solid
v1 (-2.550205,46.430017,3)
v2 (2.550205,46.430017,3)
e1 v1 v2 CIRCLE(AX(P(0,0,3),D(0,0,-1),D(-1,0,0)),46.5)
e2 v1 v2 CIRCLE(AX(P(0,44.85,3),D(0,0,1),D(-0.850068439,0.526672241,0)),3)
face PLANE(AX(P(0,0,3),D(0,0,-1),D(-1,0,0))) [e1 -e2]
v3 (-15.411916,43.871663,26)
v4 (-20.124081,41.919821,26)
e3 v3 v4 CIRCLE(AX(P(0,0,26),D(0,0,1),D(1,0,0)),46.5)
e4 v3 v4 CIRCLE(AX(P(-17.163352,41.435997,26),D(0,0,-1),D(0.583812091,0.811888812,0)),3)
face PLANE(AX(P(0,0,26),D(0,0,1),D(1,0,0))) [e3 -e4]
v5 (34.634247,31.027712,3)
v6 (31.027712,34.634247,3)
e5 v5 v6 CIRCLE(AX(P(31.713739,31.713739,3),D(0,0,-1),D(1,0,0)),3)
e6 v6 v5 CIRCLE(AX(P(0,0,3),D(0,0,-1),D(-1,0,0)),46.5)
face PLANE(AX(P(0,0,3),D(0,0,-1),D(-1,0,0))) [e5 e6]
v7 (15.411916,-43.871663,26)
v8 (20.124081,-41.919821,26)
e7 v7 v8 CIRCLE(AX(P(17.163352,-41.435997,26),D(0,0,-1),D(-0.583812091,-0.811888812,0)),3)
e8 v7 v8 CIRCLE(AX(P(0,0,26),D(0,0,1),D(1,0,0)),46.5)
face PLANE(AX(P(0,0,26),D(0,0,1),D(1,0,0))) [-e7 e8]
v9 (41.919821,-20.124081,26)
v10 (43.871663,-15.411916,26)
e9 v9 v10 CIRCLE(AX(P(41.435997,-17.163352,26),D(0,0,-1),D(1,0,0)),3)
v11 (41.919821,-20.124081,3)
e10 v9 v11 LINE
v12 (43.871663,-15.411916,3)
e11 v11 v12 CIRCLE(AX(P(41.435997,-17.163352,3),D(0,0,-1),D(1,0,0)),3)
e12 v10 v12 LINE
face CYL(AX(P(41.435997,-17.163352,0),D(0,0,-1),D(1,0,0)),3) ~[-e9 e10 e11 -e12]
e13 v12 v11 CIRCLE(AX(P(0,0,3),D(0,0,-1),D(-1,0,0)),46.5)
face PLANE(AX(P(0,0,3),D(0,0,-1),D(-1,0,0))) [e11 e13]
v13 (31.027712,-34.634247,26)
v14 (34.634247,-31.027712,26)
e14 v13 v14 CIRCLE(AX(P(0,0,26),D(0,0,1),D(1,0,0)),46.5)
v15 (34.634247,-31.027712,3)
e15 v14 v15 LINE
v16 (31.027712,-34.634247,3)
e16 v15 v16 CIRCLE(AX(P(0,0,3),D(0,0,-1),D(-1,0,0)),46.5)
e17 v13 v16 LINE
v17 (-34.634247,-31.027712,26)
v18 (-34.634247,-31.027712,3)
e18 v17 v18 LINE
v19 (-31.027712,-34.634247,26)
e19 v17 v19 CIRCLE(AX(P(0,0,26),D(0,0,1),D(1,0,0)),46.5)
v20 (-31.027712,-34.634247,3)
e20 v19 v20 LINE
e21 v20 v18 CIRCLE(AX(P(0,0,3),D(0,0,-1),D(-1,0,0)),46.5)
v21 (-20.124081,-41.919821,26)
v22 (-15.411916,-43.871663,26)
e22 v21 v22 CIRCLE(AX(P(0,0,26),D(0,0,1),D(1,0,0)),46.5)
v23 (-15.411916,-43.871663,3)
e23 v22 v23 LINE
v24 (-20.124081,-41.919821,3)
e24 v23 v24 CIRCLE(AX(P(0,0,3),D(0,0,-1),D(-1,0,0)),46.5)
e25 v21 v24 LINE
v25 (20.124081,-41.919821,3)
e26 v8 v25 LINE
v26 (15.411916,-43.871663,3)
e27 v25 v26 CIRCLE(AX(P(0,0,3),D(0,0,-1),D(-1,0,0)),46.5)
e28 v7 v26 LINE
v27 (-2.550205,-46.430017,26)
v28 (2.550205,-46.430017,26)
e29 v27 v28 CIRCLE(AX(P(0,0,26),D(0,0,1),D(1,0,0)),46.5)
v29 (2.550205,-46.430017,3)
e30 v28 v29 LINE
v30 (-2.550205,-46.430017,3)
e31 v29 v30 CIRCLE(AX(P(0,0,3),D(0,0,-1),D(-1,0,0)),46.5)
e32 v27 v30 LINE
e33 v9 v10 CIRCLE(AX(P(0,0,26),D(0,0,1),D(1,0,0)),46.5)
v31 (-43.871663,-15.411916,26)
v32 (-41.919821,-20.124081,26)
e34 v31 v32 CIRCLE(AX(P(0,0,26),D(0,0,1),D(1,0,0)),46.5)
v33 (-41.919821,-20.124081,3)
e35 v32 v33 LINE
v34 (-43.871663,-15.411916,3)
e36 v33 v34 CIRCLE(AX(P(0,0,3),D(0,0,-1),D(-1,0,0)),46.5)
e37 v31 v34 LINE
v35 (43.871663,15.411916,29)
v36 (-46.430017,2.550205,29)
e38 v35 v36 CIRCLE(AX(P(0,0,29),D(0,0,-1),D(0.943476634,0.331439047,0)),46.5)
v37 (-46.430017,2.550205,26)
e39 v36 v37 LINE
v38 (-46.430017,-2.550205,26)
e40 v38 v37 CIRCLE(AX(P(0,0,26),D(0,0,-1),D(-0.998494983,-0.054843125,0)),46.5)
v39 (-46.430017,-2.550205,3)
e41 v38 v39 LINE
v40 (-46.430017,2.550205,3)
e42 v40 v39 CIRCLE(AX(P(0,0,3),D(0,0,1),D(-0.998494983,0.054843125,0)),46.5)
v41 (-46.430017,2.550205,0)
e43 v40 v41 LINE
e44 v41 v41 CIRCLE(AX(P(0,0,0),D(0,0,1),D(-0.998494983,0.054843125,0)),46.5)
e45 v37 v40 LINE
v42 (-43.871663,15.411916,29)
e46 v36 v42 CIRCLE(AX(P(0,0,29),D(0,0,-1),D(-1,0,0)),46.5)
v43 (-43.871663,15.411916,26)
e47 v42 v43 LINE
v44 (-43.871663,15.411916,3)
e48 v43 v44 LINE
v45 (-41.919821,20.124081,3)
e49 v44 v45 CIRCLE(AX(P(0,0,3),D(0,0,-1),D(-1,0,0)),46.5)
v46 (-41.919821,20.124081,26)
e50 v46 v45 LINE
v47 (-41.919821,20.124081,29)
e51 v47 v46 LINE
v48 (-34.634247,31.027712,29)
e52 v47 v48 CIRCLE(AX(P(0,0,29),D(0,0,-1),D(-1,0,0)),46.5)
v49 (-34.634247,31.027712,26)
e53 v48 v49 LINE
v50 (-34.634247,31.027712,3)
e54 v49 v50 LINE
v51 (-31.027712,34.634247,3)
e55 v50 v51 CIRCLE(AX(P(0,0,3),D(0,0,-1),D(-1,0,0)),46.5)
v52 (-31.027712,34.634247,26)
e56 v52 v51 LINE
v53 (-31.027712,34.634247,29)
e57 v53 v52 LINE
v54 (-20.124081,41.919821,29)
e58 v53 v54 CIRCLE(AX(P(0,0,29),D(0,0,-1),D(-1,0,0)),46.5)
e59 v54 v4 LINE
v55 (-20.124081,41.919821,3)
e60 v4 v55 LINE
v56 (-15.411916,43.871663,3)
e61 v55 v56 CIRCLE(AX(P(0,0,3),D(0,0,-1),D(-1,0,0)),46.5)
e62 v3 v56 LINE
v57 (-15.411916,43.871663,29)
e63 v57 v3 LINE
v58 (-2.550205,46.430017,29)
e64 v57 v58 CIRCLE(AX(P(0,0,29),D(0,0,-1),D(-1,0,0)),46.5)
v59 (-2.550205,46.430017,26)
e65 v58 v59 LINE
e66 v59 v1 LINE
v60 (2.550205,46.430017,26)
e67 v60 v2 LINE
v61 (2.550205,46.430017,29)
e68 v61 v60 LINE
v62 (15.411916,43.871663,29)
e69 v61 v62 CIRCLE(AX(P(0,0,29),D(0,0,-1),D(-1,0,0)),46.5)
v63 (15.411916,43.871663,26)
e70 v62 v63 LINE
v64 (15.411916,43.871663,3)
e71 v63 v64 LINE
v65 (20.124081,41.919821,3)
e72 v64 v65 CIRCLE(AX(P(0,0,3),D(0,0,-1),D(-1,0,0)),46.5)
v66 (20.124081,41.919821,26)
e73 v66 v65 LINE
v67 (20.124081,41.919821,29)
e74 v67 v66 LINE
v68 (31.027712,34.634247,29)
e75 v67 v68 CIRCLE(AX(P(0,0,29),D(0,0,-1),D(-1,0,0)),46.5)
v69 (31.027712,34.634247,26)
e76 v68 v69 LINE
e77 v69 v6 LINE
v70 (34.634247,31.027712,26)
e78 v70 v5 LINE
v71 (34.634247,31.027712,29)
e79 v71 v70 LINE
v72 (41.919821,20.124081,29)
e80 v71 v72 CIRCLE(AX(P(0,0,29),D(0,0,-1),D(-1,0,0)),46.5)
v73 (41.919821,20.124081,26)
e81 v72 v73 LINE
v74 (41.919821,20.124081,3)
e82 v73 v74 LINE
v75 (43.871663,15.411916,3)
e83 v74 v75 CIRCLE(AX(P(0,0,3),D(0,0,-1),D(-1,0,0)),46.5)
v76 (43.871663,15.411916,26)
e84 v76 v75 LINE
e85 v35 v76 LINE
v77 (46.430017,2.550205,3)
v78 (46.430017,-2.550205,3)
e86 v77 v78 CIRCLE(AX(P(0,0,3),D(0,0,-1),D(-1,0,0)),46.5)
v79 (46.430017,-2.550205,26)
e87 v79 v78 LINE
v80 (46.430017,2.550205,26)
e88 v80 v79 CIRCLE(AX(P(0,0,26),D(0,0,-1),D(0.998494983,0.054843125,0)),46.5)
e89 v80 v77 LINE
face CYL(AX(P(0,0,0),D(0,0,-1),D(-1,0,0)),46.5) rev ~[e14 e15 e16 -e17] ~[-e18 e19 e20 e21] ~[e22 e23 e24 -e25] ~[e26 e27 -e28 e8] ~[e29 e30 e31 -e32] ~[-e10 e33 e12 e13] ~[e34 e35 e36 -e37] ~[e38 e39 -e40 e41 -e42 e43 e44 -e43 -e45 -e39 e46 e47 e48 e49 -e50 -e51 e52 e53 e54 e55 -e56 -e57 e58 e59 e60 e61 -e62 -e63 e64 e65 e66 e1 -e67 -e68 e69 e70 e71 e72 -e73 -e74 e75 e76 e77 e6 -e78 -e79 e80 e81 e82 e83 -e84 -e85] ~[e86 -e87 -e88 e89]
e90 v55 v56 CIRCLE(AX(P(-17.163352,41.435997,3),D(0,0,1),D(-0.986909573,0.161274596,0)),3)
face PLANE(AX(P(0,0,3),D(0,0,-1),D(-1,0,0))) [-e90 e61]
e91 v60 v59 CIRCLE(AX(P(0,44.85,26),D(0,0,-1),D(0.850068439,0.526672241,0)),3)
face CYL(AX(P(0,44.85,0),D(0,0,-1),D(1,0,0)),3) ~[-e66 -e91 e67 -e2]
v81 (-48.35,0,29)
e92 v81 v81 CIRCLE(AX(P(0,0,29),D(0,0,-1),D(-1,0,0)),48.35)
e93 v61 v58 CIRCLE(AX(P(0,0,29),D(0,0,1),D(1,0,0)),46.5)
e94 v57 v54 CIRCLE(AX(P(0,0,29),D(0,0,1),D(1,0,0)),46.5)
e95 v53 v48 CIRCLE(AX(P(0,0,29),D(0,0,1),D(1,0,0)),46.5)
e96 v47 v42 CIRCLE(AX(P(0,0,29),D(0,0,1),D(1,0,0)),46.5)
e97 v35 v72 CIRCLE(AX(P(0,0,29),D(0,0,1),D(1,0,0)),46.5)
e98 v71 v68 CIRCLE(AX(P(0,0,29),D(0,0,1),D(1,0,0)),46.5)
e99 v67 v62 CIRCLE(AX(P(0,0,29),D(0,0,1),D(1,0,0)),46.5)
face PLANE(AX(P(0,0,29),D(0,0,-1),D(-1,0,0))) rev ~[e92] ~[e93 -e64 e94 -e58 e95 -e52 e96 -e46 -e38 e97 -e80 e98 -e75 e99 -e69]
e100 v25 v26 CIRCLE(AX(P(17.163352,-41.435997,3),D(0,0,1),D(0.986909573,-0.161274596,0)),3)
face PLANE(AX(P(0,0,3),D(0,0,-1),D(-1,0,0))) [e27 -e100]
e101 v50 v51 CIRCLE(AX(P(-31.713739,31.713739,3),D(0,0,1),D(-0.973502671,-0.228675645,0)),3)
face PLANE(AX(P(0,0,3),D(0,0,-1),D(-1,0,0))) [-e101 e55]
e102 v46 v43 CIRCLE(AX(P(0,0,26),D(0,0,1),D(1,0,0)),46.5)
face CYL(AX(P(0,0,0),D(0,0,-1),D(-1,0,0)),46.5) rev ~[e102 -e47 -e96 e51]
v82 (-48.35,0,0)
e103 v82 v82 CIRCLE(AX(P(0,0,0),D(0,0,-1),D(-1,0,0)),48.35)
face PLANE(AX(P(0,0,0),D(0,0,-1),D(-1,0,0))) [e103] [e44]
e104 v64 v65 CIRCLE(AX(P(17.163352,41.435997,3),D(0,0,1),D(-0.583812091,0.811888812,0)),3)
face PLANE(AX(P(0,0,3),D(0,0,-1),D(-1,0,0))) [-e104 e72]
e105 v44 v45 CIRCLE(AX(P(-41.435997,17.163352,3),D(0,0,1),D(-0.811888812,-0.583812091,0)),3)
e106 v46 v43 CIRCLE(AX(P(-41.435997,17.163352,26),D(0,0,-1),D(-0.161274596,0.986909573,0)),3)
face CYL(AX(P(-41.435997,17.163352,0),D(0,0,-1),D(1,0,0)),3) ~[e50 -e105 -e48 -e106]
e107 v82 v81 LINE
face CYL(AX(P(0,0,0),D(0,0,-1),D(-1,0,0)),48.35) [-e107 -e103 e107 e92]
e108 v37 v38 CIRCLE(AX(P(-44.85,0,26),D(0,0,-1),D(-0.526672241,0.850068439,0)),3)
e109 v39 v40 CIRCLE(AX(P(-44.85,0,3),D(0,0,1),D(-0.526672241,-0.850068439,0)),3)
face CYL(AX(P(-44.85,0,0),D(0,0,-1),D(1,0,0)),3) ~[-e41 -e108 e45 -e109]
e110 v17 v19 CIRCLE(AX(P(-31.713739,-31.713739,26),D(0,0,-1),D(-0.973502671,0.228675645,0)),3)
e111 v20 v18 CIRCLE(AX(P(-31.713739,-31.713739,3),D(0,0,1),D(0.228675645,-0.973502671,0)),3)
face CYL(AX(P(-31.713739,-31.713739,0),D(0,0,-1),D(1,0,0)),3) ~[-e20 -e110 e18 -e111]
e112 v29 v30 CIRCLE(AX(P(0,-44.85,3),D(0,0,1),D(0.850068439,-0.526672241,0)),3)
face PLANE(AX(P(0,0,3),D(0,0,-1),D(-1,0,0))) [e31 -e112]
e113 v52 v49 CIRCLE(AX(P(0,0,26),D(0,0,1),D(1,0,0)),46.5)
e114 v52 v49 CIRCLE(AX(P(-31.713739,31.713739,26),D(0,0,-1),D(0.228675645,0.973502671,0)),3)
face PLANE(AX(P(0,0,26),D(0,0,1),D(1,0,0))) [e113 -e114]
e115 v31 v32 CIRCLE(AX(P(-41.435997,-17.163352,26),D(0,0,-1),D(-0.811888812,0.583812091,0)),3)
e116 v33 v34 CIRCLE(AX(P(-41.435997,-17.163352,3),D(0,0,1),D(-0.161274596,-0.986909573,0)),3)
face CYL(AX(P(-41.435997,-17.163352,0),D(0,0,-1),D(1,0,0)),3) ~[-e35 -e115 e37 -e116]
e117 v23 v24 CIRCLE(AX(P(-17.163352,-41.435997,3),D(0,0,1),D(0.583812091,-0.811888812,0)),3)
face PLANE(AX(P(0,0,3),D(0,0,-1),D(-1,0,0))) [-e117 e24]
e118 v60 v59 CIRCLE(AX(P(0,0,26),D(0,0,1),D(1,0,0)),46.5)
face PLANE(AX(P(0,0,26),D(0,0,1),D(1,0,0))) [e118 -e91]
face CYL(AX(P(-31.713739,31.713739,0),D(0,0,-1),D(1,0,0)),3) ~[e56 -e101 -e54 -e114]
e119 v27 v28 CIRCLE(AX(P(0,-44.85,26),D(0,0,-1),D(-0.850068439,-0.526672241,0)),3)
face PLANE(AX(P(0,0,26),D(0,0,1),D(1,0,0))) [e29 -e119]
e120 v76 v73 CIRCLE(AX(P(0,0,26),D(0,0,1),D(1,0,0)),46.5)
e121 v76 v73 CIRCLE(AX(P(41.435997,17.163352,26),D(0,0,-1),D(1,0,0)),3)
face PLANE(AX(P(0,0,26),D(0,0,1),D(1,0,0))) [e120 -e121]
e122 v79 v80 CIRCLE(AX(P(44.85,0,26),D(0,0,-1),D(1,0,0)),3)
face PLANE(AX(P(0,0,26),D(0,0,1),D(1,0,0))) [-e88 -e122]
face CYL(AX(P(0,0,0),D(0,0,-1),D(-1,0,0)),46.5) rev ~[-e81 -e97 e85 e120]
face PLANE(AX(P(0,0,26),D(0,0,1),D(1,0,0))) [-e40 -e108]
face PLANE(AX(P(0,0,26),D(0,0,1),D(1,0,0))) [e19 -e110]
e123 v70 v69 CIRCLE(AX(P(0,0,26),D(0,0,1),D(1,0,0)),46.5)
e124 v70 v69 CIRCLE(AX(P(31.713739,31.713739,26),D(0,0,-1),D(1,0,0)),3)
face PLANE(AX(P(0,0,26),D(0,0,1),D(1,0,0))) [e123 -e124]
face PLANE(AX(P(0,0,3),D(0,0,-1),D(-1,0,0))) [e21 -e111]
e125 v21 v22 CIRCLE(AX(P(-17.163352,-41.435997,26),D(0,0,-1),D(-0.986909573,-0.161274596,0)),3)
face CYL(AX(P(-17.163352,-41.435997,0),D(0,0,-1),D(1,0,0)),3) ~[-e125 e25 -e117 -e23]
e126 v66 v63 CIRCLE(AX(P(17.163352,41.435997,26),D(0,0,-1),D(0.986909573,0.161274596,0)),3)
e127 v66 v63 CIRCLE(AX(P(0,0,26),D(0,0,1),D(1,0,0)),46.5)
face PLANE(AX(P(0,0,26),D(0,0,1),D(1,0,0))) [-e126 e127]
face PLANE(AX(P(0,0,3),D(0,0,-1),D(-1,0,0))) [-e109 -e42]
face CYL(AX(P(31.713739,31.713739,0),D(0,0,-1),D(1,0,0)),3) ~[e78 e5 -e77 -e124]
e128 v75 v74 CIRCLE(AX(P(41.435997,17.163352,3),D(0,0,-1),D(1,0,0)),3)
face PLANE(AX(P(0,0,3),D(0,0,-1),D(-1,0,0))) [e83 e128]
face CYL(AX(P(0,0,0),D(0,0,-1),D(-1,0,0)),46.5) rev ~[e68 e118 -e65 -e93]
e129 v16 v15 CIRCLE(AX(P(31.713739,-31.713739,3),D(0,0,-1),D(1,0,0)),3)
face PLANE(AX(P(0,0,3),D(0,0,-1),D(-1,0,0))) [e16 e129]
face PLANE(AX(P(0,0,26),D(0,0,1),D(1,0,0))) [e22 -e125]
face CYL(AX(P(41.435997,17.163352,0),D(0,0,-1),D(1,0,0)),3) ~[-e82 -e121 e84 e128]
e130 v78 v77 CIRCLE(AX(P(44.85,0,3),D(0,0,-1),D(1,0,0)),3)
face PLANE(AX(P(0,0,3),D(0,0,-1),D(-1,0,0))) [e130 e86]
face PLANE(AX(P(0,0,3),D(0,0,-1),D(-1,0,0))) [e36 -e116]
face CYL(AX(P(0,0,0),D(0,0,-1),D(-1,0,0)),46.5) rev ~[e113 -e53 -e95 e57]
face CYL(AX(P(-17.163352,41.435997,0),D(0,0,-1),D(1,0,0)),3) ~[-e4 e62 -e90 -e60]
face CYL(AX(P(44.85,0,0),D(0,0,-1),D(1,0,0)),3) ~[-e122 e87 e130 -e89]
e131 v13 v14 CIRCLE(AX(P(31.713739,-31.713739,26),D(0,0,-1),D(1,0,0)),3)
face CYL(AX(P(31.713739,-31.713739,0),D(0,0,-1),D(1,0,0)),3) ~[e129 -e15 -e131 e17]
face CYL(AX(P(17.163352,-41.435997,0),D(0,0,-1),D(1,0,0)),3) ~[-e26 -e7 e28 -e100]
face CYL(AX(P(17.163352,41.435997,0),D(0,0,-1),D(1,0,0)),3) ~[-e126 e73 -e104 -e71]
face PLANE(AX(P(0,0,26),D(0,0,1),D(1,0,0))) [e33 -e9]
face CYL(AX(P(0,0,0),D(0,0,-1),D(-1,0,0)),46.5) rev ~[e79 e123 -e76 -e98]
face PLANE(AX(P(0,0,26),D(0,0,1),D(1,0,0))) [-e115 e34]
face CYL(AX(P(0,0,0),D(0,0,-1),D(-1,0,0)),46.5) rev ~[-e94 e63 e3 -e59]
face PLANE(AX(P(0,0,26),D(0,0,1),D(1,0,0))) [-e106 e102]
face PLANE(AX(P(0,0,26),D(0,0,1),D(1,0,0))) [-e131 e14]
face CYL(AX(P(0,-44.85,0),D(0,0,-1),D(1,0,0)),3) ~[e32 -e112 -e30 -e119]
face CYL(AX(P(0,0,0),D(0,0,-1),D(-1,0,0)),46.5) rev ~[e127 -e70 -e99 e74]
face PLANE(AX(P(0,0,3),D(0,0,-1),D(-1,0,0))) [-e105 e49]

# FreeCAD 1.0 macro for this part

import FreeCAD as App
import Part
import Sketcher

doc = App.newDocument("Part")
body = doc.addObject("PartDesign::Body", "Body")

sketch1 = body.newObject("Sketcher::SketchObject", "Sketch")
sketch1.AttachmentSupport = (doc.getObject("XY_Plane"), [""])
sketch1.MapMode = "FlatFace"
sketch1.addGeometry(Part.Circle(App.Vector(-41.435997, 17.163352, 0), App.Vector(0, 0, 1), 3), False)
sketch1.addConstraint(Sketcher.Constraint("Diameter", 0, 6.0))
sketch1.addConstraint(Sketcher.Constraint("DistanceY", -1, 1, 0, 3, 17.163352))
sketch1.addConstraint(Sketcher.Constraint("DistanceX", 0, 3, -1, 1, 41.435997))
pad1 = body.newObject("PartDesign::Pad", "Pad")
pad1.Profile = sketch1
pad1.Length = 29
body2 = doc.addObject("PartDesign::Body", "Body001")

sketch2 = body2.newObject("Sketcher::SketchObject", "Sketch001")
sketch2.AttachmentSupport = (doc.getObject("XY_Plane001"), [""])
sketch2.MapMode = "FlatFace"
sketch2.addGeometry(Part.Circle(App.Vector(-31.713739, 31.713739, 0), App.Vector(0, 0, 1), 3), False)
sketch2.addConstraint(Sketcher.Constraint("Diameter", 0, 6.0))
sketch2.addConstraint(Sketcher.Constraint("DistanceX", 0, 3, -1, 1, 31.713739))
sketch2.addConstraint(Sketcher.Constraint("DistanceY", -1, 1, 0, 3, 31.713739))
pad2 = body2.newObject("PartDesign::Pad", "Pad001")
pad2.Profile = sketch2
pad2.Length = 29
body3 = doc.addObject("PartDesign::Body", "Body002")

sketch3 = body3.newObject("Sketcher::SketchObject", "Sketch002")
sketch3.AttachmentSupport = (doc.getObject("XY_Plane002"), [""])
sketch3.MapMode = "FlatFace"
sketch3.addGeometry(Part.Circle(App.Vector(-17.163352, 41.435997, 0), App.Vector(0, 0, 1), 3), False)
sketch3.addConstraint(Sketcher.Constraint("Diameter", 0, 6.0))
sketch3.addConstraint(Sketcher.Constraint("DistanceX", 0, 3, -1, 1, 17.163352))
sketch3.addConstraint(Sketcher.Constraint("DistanceY", -1, 1, 0, 3, 41.435997))
pad3 = body3.newObject("PartDesign::Pad", "Pad002")
pad3.Profile = sketch3
pad3.Length = 29
body4 = doc.addObject("PartDesign::Body", "Body003")

sketch4 = body4.newObject("Sketcher::SketchObject", "Sketch003")
sketch4.AttachmentSupport = (doc.getObject("XY_Plane003"), [""])
sketch4.MapMode = "FlatFace"
sketch4.addGeometry(Part.Circle(App.Vector(0, 44.85, 0), App.Vector(0, 0, 1), 3), False)
sketch4.addConstraint(Sketcher.Constraint("PointOnObject", 0, 3, -2))
sketch4.addConstraint(Sketcher.Constraint("Diameter", 0, 6.0))
sketch4.addConstraint(Sketcher.Constraint("DistanceY", -1, 1, 0, 3, 44.85))
pad4 = body4.newObject("PartDesign::Pad", "Pad003")
pad4.Profile = sketch4
pad4.Length = 29
body5 = doc.addObject("PartDesign::Body", "Body004")

sketch5 = body5.newObject("Sketcher::SketchObject", "Sketch004")
sketch5.AttachmentSupport = (doc.getObject("XY_Plane004"), [""])
sketch5.MapMode = "FlatFace"
sketch5.addGeometry(Part.Circle(App.Vector(17.163352, 41.435997, 0), App.Vector(0, 0, 1), 3), False)
sketch5.addConstraint(Sketcher.Constraint("Diameter", 0, 6.0))
sketch5.addConstraint(Sketcher.Constraint("DistanceX", -1, 1, 0, 3, 17.163352))
sketch5.addConstraint(Sketcher.Constraint("DistanceY", -1, 1, 0, 3, 41.435997))
pad5 = body5.newObject("PartDesign::Pad", "Pad004")
pad5.Profile = sketch5
pad5.Length = 29
body6 = doc.addObject("PartDesign::Body", "Body005")

sketch6 = body6.newObject("Sketcher::SketchObject", "Sketch005")
sketch6.AttachmentSupport = (doc.getObject("XY_Plane005"), [""])
sketch6.MapMode = "FlatFace"
sketch6.addGeometry(Part.Circle(App.Vector(31.713739, 31.713739, 0), App.Vector(0, 0, 1), 3), False)
sketch6.addConstraint(Sketcher.Constraint("Diameter", 0, 6.0))
sketch6.addConstraint(Sketcher.Constraint("DistanceX", -1, 1, 0, 3, 31.713739))
sketch6.addConstraint(Sketcher.Constraint("DistanceY", -1, 1, 0, 3, 31.713739))
pad6 = body6.newObject("PartDesign::Pad", "Pad005")
pad6.Profile = sketch6
pad6.Length = 29
body7 = doc.addObject("PartDesign::Body", "Body006")

sketch7 = body7.newObject("Sketcher::SketchObject", "Sketch006")
sketch7.AttachmentSupport = (doc.getObject("XY_Plane006"), [""])
sketch7.MapMode = "FlatFace"
sketch7.addGeometry(Part.Circle(App.Vector(41.435997, 17.163352, 0), App.Vector(0, 0, 1), 3), False)
sketch7.addConstraint(Sketcher.Constraint("Diameter", 0, 6.0))
sketch7.addConstraint(Sketcher.Constraint("DistanceY", -1, 1, 0, 3, 17.163352))
sketch7.addConstraint(Sketcher.Constraint("DistanceX", -1, 1, 0, 3, 41.435997))
pad7 = body7.newObject("PartDesign::Pad", "Pad006")
pad7.Profile = sketch7
pad7.Length = 29
body8 = doc.addObject("PartDesign::Body", "Body007")

sketch8 = body8.newObject("Sketcher::SketchObject", "Sketch007")
sketch8.AttachmentSupport = (doc.getObject("XY_Plane007"), [""])
sketch8.MapMode = "FlatFace"
sketch8.addGeometry(Part.Circle(App.Vector(44.85, 0, 0), App.Vector(0, 0, 1), 3), False)
sketch8.addConstraint(Sketcher.Constraint("PointOnObject", 0, 3, -1))
sketch8.addConstraint(Sketcher.Constraint("Diameter", 0, 6.0))
sketch8.addConstraint(Sketcher.Constraint("DistanceX", -1, 1, 0, 3, 44.85))
pad8 = body8.newObject("PartDesign::Pad", "Pad007")
pad8.Profile = sketch8
pad8.Length = 29
body9 = doc.addObject("PartDesign::Body", "Body008")

sketch9 = body9.newObject("Sketcher::SketchObject", "Sketch008")
sketch9.AttachmentSupport = (doc.getObject("XY_Plane008"), [""])
sketch9.MapMode = "FlatFace"
sketch9.addGeometry(Part.Circle(App.Vector(41.435997, -17.163352, 0), App.Vector(0, 0, 1), 3), False)
sketch9.addConstraint(Sketcher.Constraint("Diameter", 0, 6.0))
sketch9.addConstraint(Sketcher.Constraint("DistanceY", 0, 3, -1, 1, 17.163352))
sketch9.addConstraint(Sketcher.Constraint("DistanceX", -1, 1, 0, 3, 41.435997))
pad9 = body9.newObject("PartDesign::Pad", "Pad008")
pad9.Profile = sketch9
pad9.Length = 29
body10 = doc.addObject("PartDesign::Body", "Body009")

sketch10 = body10.newObject("Sketcher::SketchObject", "Sketch009")
sketch10.AttachmentSupport = (doc.getObject("XY_Plane009"), [""])
sketch10.MapMode = "FlatFace"
sketch10.addGeometry(Part.Circle(App.Vector(17.163352, -41.435997, 0), App.Vector(0, 0, 1), 3), False)
sketch10.addConstraint(Sketcher.Constraint("Diameter", 0, 6.0))
sketch10.addConstraint(Sketcher.Constraint("DistanceX", -1, 1, 0, 3, 17.163352))
sketch10.addConstraint(Sketcher.Constraint("DistanceY", 0, 3, -1, 1, 41.435997))
pad10 = body10.newObject("PartDesign::Pad", "Pad009")
pad10.Profile = sketch10
pad10.Length = 29
body11 = doc.addObject("PartDesign::Body", "Body010")

sketch11 = body11.newObject("Sketcher::SketchObject", "Sketch010")
sketch11.AttachmentSupport = (doc.getObject("XY_Plane010"), [""])
sketch11.MapMode = "FlatFace"
sketch11.addGeometry(Part.Circle(App.Vector(0, -44.85, 0), App.Vector(0, 0, 1), 3), False)
sketch11.addConstraint(Sketcher.Constraint("PointOnObject", 0, 3, -2))
sketch11.addConstraint(Sketcher.Constraint("Diameter", 0, 6.0))
sketch11.addConstraint(Sketcher.Constraint("DistanceY", 0, 3, -1, 1, 44.85))
pad11 = body11.newObject("PartDesign::Pad", "Pad010")
pad11.Profile = sketch11
pad11.Length = 29
body12 = doc.addObject("PartDesign::Body", "Body011")

sketch12 = body12.newObject("Sketcher::SketchObject", "Sketch011")
sketch12.AttachmentSupport = (doc.getObject("XY_Plane011"), [""])
sketch12.MapMode = "FlatFace"
sketch12.addGeometry(Part.Circle(App.Vector(-17.163352, -41.435997, 0), App.Vector(0, 0, 1), 3), False)
sketch12.addConstraint(Sketcher.Constraint("Diameter", 0, 6.0))
sketch12.addConstraint(Sketcher.Constraint("DistanceX", 0, 3, -1, 1, 17.163352))
sketch12.addConstraint(Sketcher.Constraint("DistanceY", 0, 3, -1, 1, 41.435997))
pad12 = body12.newObject("PartDesign::Pad", "Pad011")
pad12.Profile = sketch12
pad12.Length = 29
body13 = doc.addObject("PartDesign::Body", "Body012")

sketch13 = body13.newObject("Sketcher::SketchObject", "Sketch012")
sketch13.AttachmentSupport = (doc.getObject("XY_Plane012"), [""])
sketch13.MapMode = "FlatFace"
sketch13.addGeometry(Part.Circle(App.Vector(-41.435997, -17.163352, 0), App.Vector(0, 0, 1), 3), False)
sketch13.addConstraint(Sketcher.Constraint("Diameter", 0, 6.0))
sketch13.addConstraint(Sketcher.Constraint("DistanceY", 0, 3, -1, 1, 17.163352))
sketch13.addConstraint(Sketcher.Constraint("DistanceX", 0, 3, -1, 1, 41.435997))
pad13 = body13.newObject("PartDesign::Pad", "Pad012")
pad13.Profile = sketch13
pad13.Length = 29
body14 = doc.addObject("PartDesign::Body", "Body013")

sketch14 = body14.newObject("Sketcher::SketchObject", "Sketch013")
sketch14.AttachmentSupport = (doc.getObject("XY_Plane013"), [""])
sketch14.MapMode = "FlatFace"
sketch14.addGeometry(Part.Circle(App.Vector(-31.713739, -31.713739, 0), App.Vector(0, 0, 1), 3), False)
sketch14.addConstraint(Sketcher.Constraint("Diameter", 0, 6.0))
sketch14.addConstraint(Sketcher.Constraint("DistanceX", 0, 3, -1, 1, 31.713739))
sketch14.addConstraint(Sketcher.Constraint("DistanceY", 0, 3, -1, 1, 31.713739))
pad14 = body14.newObject("PartDesign::Pad", "Pad013")
pad14.Profile = sketch14
pad14.Length = 29
body15 = doc.addObject("PartDesign::Body", "Body014")

sketch15 = body15.newObject("Sketcher::SketchObject", "Sketch014")
sketch15.AttachmentSupport = (doc.getObject("XY_Plane014"), [""])
sketch15.MapMode = "FlatFace"
sketch15.addGeometry(Part.Circle(App.Vector(-44.85, 0, 0), App.Vector(0, 0, 1), 3), False)
sketch15.addConstraint(Sketcher.Constraint("PointOnObject", 0, 3, -1))
sketch15.addConstraint(Sketcher.Constraint("Diameter", 0, 6.0))
sketch15.addConstraint(Sketcher.Constraint("DistanceX", 0, 3, -1, 1, 44.85))
pad15 = body15.newObject("PartDesign::Pad", "Pad014")
pad15.Profile = sketch15
pad15.Length = 29
body16 = doc.addObject("PartDesign::Body", "Body015")

sketch16 = body16.newObject("Sketcher::SketchObject", "Sketch015")
sketch16.AttachmentSupport = (doc.getObject("XY_Plane015"), [""])
sketch16.MapMode = "FlatFace"
sketch16.addGeometry(Part.Circle(App.Vector(31.713739, -31.713739, 0), App.Vector(0, 0, 1), 3), False)
sketch16.addConstraint(Sketcher.Constraint("Diameter", 0, 6.0))
sketch16.addConstraint(Sketcher.Constraint("DistanceX", -1, 1, 0, 3, 31.713739))
sketch16.addConstraint(Sketcher.Constraint("DistanceY", 0, 3, -1, 1, 31.713739))
pad16 = body16.newObject("PartDesign::Pad", "Pad015")
pad16.Profile = sketch16
pad16.Length = 29
body17 = doc.addObject("PartDesign::Body", "Body016")

sketch17 = body17.newObject("Sketcher::SketchObject", "Sketch016")
sketch17.AttachmentSupport = (doc.getObject("XY_Plane016"), [""])
sketch17.MapMode = "FlatFace"
sketch17.addGeometry(Part.Circle(App.Vector(0, 0, 0), App.Vector(0, 0, 1), 47.85), False)
sketch17.addGeometry(Part.Circle(App.Vector(0, 0, 0), App.Vector(0, 0, 1), 46.5), False)
sketch17.addConstraint(Sketcher.Constraint("Coincident", 0, 3, -1, 1))
sketch17.addConstraint(Sketcher.Constraint("Coincident", 1, 3, -1, 1))
sketch17.addConstraint(Sketcher.Constraint("Diameter", 1, 93.0))
sketch17.addConstraint(Sketcher.Constraint("Diameter", 0, 95.7))
pad17 = body17.newObject("PartDesign::Pad", "Pad016")
pad17.Profile = sketch17
pad17.Length = 29
body18 = doc.addObject("PartDesign::Body", "Body017")

sketch18 = body18.newObject("Sketcher::SketchObject", "Sketch017")
sketch18.AttachmentSupport = (doc.getObject("XY_Plane017"), [""])
sketch18.MapMode = "FlatFace"
sketch18.addGeometry(Part.Circle(App.Vector(0, 0, 0), App.Vector(0, 0, 1), 46.5), False)
sketch18.addConstraint(Sketcher.Constraint("Coincident", 0, 3, -1, 1))
sketch18.addConstraint(Sketcher.Constraint("Diameter", 0, 93.0))
pad18 = body18.newObject("PartDesign::Pad", "Pad017")
pad18.Profile = sketch18
pad18.Length = 3
doc.recompute()

body19 = doc.addObject("PartDesign::Body", "Body018")
body19.BaseFeature = body18
boolean = body.newObject("PartDesign::Boolean", "Boolean")
boolean.Type = "Cut"
boolean.addObjects([body19])
doc.recompute()

body20 = doc.addObject("PartDesign::Body", "Body019")
body20.BaseFeature = body18
boolean2 = body2.newObject("PartDesign::Boolean", "Boolean001")
boolean2.Type = "Cut"
boolean2.addObjects([body20])
doc.recompute()

body21 = doc.addObject("PartDesign::Body", "Body020")
body21.BaseFeature = body18
boolean3 = body3.newObject("PartDesign::Boolean", "Boolean002")
boolean3.Type = "Cut"
boolean3.addObjects([body21])
doc.recompute()

body22 = doc.addObject("PartDesign::Body", "Body021")
body22.BaseFeature = body18
boolean4 = body4.newObject("PartDesign::Boolean", "Boolean003")
boolean4.Type = "Cut"
boolean4.addObjects([body22])
doc.recompute()

body23 = doc.addObject("PartDesign::Body", "Body022")
body23.BaseFeature = body18
boolean5 = body5.newObject("PartDesign::Boolean", "Boolean004")
boolean5.Type = "Cut"
boolean5.addObjects([body23])
doc.recompute()

body24 = doc.addObject("PartDesign::Body", "Body023")
body24.BaseFeature = body18
boolean6 = body6.newObject("PartDesign::Boolean", "Boolean005")
boolean6.Type = "Cut"
boolean6.addObjects([body24])
doc.recompute()

body25 = doc.addObject("PartDesign::Body", "Body024")
body25.BaseFeature = body18
boolean7 = body7.newObject("PartDesign::Boolean", "Boolean006")
boolean7.Type = "Cut"
boolean7.addObjects([body25])
doc.recompute()

body26 = doc.addObject("PartDesign::Body", "Body025")
body26.BaseFeature = body18
boolean8 = body8.newObject("PartDesign::Boolean", "Boolean007")
boolean8.Type = "Cut"
boolean8.addObjects([body26])
doc.recompute()

body27 = doc.addObject("PartDesign::Body", "Body026")
body27.BaseFeature = body18
boolean9 = body9.newObject("PartDesign::Boolean", "Boolean008")
boolean9.Type = "Cut"
boolean9.addObjects([body27])
doc.recompute()

body28 = doc.addObject("PartDesign::Body", "Body027")
body28.BaseFeature = body18
boolean10 = body10.newObject("PartDesign::Boolean", "Boolean009")
boolean10.Type = "Cut"
boolean10.addObjects([body28])
doc.recompute()

body29 = doc.addObject("PartDesign::Body", "Body028")
body29.BaseFeature = body18
boolean11 = body11.newObject("PartDesign::Boolean", "Boolean010")
boolean11.Type = "Cut"
boolean11.addObjects([body29])
doc.recompute()

body30 = doc.addObject("PartDesign::Body", "Body029")
body30.BaseFeature = body18
boolean12 = body12.newObject("PartDesign::Boolean", "Boolean011")
boolean12.Type = "Cut"
boolean12.addObjects([body30])
doc.recompute()

body31 = doc.addObject("PartDesign::Body", "Body030")
body31.BaseFeature = body18
boolean13 = body13.newObject("PartDesign::Boolean", "Boolean012")
boolean13.Type = "Cut"
boolean13.addObjects([body31])
doc.recompute()

body32 = doc.addObject("PartDesign::Body", "Body031")
body32.BaseFeature = body18
boolean14 = body14.newObject("PartDesign::Boolean", "Boolean013")
boolean14.Type = "Cut"
boolean14.addObjects([body32])
doc.recompute()

body33 = doc.addObject("PartDesign::Body", "Body032")
body33.BaseFeature = body18
boolean15 = body15.newObject("PartDesign::Boolean", "Boolean014")
boolean15.Type = "Cut"
boolean15.addObjects([body33])
doc.recompute()

boolean16 = body16.newObject("PartDesign::Boolean", "Boolean015")
boolean16.Type = "Cut"
boolean16.addObjects([body18])
body34 = doc.addObject("PartDesign::Body", "Body033")

sketch19 = body34.newObject("Sketcher::SketchObject", "Sketch018")
sketch19.AttachmentSupport = (doc.getObject("XY_Plane033"), [""])
sketch19.MapMode = "FlatFace"
sketch19.AttachmentOffset = App.Placement(App.Vector(0, 0, 29), App.Rotation())
sketch19.addGeometry(Part.Circle(App.Vector(0, 0, 0), App.Vector(0, 0, 1), 46.5), False)
sketch19.addConstraint(Sketcher.Constraint("Coincident", 0, 3, -1, 1))
sketch19.addConstraint(Sketcher.Constraint("Diameter", 0, 93.0))
pad19 = body34.newObject("PartDesign::Pad", "Pad018")
pad19.Profile = sketch19
pad19.Length = 3
pad19.Reversed = True
doc.recompute()

body35 = doc.addObject("PartDesign::Body", "Body034")
body35.BaseFeature = body34
boolean17 = body.newObject("PartDesign::Boolean", "Boolean016")
boolean17.Type = "Cut"
boolean17.addObjects([body35])
doc.recompute()

body36 = doc.addObject("PartDesign::Body", "Body035")
body36.BaseFeature = body34
boolean18 = body2.newObject("PartDesign::Boolean", "Boolean017")
boolean18.Type = "Cut"
boolean18.addObjects([body36])
doc.recompute()

body37 = doc.addObject("PartDesign::Body", "Body036")
body37.BaseFeature = body34
boolean19 = body3.newObject("PartDesign::Boolean", "Boolean018")
boolean19.Type = "Cut"
boolean19.addObjects([body37])
doc.recompute()

body38 = doc.addObject("PartDesign::Body", "Body037")
body38.BaseFeature = body34
boolean20 = body4.newObject("PartDesign::Boolean", "Boolean019")
boolean20.Type = "Cut"
boolean20.addObjects([body38])
doc.recompute()

body39 = doc.addObject("PartDesign::Body", "Body038")
body39.BaseFeature = body34
boolean21 = body5.newObject("PartDesign::Boolean", "Boolean020")
boolean21.Type = "Cut"
boolean21.addObjects([body39])
doc.recompute()

body40 = doc.addObject("PartDesign::Body", "Body039")
body40.BaseFeature = body34
boolean22 = body6.newObject("PartDesign::Boolean", "Boolean021")
boolean22.Type = "Cut"
boolean22.addObjects([body40])
doc.recompute()

body41 = doc.addObject("PartDesign::Body", "Body040")
body41.BaseFeature = body34
boolean23 = body7.newObject("PartDesign::Boolean", "Boolean022")
boolean23.Type = "Cut"
boolean23.addObjects([body41])
doc.recompute()

body42 = doc.addObject("PartDesign::Body", "Body041")
body42.BaseFeature = body34
boolean24 = body8.newObject("PartDesign::Boolean", "Boolean023")
boolean24.Type = "Cut"
boolean24.addObjects([body42])
doc.recompute()

body43 = doc.addObject("PartDesign::Body", "Body042")
body43.BaseFeature = body34
boolean25 = body9.newObject("PartDesign::Boolean", "Boolean024")
boolean25.Type = "Cut"
boolean25.addObjects([body43])
doc.recompute()

body44 = doc.addObject("PartDesign::Body", "Body043")
body44.BaseFeature = body34
boolean26 = body10.newObject("PartDesign::Boolean", "Boolean025")
boolean26.Type = "Cut"
boolean26.addObjects([body44])
doc.recompute()

body45 = doc.addObject("PartDesign::Body", "Body044")
body45.BaseFeature = body34
boolean27 = body11.newObject("PartDesign::Boolean", "Boolean026")
boolean27.Type = "Cut"
boolean27.addObjects([body45])
doc.recompute()

body46 = doc.addObject("PartDesign::Body", "Body045")
body46.BaseFeature = body34
boolean28 = body12.newObject("PartDesign::Boolean", "Boolean027")
boolean28.Type = "Cut"
boolean28.addObjects([body46])
doc.recompute()

body47 = doc.addObject("PartDesign::Body", "Body046")
body47.BaseFeature = body34
boolean29 = body13.newObject("PartDesign::Boolean", "Boolean028")
boolean29.Type = "Cut"
boolean29.addObjects([body47])
doc.recompute()

body48 = doc.addObject("PartDesign::Body", "Body047")
body48.BaseFeature = body34
boolean30 = body14.newObject("PartDesign::Boolean", "Boolean029")
boolean30.Type = "Cut"
boolean30.addObjects([body48])
doc.recompute()

body49 = doc.addObject("PartDesign::Body", "Body048")
body49.BaseFeature = body34
boolean31 = body15.newObject("PartDesign::Boolean", "Boolean030")
boolean31.Type = "Cut"
boolean31.addObjects([body49])
doc.recompute()

boolean32 = body16.newObject("PartDesign::Boolean", "Boolean031")
boolean32.Type = "Cut"
boolean32.addObjects([body34])
body.AllowCompound = True
doc.recompute()

boolean33 = body.newObject("PartDesign::Boolean", "Boolean032")
boolean33.Type = "Fuse"
boolean33.addObjects([body2])
doc.recompute()

boolean34 = body.newObject("PartDesign::Boolean", "Boolean033")
boolean34.Type = "Fuse"
boolean34.addObjects([body3])
doc.recompute()

boolean35 = body.newObject("PartDesign::Boolean", "Boolean034")
boolean35.Type = "Fuse"
boolean35.addObjects([body4])
doc.recompute()

boolean36 = body.newObject("PartDesign::Boolean", "Boolean035")
boolean36.Type = "Fuse"
boolean36.addObjects([body5])
doc.recompute()

boolean37 = body.newObject("PartDesign::Boolean", "Boolean036")
boolean37.Type = "Fuse"
boolean37.addObjects([body6])
doc.recompute()

boolean38 = body.newObject("PartDesign::Boolean", "Boolean037")
boolean38.Type = "Fuse"
boolean38.addObjects([body7])
doc.recompute()

boolean39 = body.newObject("PartDesign::Boolean", "Boolean038")
boolean39.Type = "Fuse"
boolean39.addObjects([body8])
doc.recompute()

boolean40 = body.newObject("PartDesign::Boolean", "Boolean039")
boolean40.Type = "Fuse"
boolean40.addObjects([body9])
doc.recompute()

boolean41 = body.newObject("PartDesign::Boolean", "Boolean040")
boolean41.Type = "Fuse"
boolean41.addObjects([body10])
doc.recompute()

boolean42 = body.newObject("PartDesign::Boolean", "Boolean041")
boolean42.Type = "Fuse"
boolean42.addObjects([body11])
doc.recompute()

boolean43 = body.newObject("PartDesign::Boolean", "Boolean042")
boolean43.Type = "Fuse"
boolean43.addObjects([body12])
doc.recompute()

boolean44 = body.newObject("PartDesign::Boolean", "Boolean043")
boolean44.Type = "Fuse"
boolean44.addObjects([body13])
doc.recompute()

boolean45 = body.newObject("PartDesign::Boolean", "Boolean044")
boolean45.Type = "Fuse"
boolean45.addObjects([body14])
doc.recompute()

boolean46 = body.newObject("PartDesign::Boolean", "Boolean045")
boolean46.Type = "Fuse"
boolean46.addObjects([body15])
doc.recompute()

boolean47 = body.newObject("PartDesign::Boolean", "Boolean046")
boolean47.Type = "Fuse"
boolean47.addObjects([body16])
doc.recompute()

boolean48 = body.newObject("PartDesign::Boolean", "Boolean047")
boolean48.Type = "Fuse"
boolean48.addObjects([body17])

sketch20 = body.newObject("Sketcher::SketchObject", "Sketch019")
sketch20.AttachmentSupport = (doc.getObject("XY_Plane"), [""])
sketch20.MapMode = "FlatFace"
sketch20.addGeometry(Part.Circle(App.Vector(0, 0, 0), App.Vector(0, 0, 1), 48.35), False)
sketch20.addGeometry(Part.Circle(App.Vector(0, 0, 0), App.Vector(0, 0, 1), 47.85), False)
sketch20.addConstraint(Sketcher.Constraint("Coincident", 0, 3, -1, 1))
sketch20.addConstraint(Sketcher.Constraint("Coincident", 1, 3, -1, 1))
sketch20.addConstraint(Sketcher.Constraint("Diameter", 0, 96.7))
sketch20.addConstraint(Sketcher.Constraint("Diameter", 1, 95.7))
pad20 = body.newObject("PartDesign::Pad", "Pad019")
pad20.Profile = sketch20
pad20.Length = 29

doc.recompute()
